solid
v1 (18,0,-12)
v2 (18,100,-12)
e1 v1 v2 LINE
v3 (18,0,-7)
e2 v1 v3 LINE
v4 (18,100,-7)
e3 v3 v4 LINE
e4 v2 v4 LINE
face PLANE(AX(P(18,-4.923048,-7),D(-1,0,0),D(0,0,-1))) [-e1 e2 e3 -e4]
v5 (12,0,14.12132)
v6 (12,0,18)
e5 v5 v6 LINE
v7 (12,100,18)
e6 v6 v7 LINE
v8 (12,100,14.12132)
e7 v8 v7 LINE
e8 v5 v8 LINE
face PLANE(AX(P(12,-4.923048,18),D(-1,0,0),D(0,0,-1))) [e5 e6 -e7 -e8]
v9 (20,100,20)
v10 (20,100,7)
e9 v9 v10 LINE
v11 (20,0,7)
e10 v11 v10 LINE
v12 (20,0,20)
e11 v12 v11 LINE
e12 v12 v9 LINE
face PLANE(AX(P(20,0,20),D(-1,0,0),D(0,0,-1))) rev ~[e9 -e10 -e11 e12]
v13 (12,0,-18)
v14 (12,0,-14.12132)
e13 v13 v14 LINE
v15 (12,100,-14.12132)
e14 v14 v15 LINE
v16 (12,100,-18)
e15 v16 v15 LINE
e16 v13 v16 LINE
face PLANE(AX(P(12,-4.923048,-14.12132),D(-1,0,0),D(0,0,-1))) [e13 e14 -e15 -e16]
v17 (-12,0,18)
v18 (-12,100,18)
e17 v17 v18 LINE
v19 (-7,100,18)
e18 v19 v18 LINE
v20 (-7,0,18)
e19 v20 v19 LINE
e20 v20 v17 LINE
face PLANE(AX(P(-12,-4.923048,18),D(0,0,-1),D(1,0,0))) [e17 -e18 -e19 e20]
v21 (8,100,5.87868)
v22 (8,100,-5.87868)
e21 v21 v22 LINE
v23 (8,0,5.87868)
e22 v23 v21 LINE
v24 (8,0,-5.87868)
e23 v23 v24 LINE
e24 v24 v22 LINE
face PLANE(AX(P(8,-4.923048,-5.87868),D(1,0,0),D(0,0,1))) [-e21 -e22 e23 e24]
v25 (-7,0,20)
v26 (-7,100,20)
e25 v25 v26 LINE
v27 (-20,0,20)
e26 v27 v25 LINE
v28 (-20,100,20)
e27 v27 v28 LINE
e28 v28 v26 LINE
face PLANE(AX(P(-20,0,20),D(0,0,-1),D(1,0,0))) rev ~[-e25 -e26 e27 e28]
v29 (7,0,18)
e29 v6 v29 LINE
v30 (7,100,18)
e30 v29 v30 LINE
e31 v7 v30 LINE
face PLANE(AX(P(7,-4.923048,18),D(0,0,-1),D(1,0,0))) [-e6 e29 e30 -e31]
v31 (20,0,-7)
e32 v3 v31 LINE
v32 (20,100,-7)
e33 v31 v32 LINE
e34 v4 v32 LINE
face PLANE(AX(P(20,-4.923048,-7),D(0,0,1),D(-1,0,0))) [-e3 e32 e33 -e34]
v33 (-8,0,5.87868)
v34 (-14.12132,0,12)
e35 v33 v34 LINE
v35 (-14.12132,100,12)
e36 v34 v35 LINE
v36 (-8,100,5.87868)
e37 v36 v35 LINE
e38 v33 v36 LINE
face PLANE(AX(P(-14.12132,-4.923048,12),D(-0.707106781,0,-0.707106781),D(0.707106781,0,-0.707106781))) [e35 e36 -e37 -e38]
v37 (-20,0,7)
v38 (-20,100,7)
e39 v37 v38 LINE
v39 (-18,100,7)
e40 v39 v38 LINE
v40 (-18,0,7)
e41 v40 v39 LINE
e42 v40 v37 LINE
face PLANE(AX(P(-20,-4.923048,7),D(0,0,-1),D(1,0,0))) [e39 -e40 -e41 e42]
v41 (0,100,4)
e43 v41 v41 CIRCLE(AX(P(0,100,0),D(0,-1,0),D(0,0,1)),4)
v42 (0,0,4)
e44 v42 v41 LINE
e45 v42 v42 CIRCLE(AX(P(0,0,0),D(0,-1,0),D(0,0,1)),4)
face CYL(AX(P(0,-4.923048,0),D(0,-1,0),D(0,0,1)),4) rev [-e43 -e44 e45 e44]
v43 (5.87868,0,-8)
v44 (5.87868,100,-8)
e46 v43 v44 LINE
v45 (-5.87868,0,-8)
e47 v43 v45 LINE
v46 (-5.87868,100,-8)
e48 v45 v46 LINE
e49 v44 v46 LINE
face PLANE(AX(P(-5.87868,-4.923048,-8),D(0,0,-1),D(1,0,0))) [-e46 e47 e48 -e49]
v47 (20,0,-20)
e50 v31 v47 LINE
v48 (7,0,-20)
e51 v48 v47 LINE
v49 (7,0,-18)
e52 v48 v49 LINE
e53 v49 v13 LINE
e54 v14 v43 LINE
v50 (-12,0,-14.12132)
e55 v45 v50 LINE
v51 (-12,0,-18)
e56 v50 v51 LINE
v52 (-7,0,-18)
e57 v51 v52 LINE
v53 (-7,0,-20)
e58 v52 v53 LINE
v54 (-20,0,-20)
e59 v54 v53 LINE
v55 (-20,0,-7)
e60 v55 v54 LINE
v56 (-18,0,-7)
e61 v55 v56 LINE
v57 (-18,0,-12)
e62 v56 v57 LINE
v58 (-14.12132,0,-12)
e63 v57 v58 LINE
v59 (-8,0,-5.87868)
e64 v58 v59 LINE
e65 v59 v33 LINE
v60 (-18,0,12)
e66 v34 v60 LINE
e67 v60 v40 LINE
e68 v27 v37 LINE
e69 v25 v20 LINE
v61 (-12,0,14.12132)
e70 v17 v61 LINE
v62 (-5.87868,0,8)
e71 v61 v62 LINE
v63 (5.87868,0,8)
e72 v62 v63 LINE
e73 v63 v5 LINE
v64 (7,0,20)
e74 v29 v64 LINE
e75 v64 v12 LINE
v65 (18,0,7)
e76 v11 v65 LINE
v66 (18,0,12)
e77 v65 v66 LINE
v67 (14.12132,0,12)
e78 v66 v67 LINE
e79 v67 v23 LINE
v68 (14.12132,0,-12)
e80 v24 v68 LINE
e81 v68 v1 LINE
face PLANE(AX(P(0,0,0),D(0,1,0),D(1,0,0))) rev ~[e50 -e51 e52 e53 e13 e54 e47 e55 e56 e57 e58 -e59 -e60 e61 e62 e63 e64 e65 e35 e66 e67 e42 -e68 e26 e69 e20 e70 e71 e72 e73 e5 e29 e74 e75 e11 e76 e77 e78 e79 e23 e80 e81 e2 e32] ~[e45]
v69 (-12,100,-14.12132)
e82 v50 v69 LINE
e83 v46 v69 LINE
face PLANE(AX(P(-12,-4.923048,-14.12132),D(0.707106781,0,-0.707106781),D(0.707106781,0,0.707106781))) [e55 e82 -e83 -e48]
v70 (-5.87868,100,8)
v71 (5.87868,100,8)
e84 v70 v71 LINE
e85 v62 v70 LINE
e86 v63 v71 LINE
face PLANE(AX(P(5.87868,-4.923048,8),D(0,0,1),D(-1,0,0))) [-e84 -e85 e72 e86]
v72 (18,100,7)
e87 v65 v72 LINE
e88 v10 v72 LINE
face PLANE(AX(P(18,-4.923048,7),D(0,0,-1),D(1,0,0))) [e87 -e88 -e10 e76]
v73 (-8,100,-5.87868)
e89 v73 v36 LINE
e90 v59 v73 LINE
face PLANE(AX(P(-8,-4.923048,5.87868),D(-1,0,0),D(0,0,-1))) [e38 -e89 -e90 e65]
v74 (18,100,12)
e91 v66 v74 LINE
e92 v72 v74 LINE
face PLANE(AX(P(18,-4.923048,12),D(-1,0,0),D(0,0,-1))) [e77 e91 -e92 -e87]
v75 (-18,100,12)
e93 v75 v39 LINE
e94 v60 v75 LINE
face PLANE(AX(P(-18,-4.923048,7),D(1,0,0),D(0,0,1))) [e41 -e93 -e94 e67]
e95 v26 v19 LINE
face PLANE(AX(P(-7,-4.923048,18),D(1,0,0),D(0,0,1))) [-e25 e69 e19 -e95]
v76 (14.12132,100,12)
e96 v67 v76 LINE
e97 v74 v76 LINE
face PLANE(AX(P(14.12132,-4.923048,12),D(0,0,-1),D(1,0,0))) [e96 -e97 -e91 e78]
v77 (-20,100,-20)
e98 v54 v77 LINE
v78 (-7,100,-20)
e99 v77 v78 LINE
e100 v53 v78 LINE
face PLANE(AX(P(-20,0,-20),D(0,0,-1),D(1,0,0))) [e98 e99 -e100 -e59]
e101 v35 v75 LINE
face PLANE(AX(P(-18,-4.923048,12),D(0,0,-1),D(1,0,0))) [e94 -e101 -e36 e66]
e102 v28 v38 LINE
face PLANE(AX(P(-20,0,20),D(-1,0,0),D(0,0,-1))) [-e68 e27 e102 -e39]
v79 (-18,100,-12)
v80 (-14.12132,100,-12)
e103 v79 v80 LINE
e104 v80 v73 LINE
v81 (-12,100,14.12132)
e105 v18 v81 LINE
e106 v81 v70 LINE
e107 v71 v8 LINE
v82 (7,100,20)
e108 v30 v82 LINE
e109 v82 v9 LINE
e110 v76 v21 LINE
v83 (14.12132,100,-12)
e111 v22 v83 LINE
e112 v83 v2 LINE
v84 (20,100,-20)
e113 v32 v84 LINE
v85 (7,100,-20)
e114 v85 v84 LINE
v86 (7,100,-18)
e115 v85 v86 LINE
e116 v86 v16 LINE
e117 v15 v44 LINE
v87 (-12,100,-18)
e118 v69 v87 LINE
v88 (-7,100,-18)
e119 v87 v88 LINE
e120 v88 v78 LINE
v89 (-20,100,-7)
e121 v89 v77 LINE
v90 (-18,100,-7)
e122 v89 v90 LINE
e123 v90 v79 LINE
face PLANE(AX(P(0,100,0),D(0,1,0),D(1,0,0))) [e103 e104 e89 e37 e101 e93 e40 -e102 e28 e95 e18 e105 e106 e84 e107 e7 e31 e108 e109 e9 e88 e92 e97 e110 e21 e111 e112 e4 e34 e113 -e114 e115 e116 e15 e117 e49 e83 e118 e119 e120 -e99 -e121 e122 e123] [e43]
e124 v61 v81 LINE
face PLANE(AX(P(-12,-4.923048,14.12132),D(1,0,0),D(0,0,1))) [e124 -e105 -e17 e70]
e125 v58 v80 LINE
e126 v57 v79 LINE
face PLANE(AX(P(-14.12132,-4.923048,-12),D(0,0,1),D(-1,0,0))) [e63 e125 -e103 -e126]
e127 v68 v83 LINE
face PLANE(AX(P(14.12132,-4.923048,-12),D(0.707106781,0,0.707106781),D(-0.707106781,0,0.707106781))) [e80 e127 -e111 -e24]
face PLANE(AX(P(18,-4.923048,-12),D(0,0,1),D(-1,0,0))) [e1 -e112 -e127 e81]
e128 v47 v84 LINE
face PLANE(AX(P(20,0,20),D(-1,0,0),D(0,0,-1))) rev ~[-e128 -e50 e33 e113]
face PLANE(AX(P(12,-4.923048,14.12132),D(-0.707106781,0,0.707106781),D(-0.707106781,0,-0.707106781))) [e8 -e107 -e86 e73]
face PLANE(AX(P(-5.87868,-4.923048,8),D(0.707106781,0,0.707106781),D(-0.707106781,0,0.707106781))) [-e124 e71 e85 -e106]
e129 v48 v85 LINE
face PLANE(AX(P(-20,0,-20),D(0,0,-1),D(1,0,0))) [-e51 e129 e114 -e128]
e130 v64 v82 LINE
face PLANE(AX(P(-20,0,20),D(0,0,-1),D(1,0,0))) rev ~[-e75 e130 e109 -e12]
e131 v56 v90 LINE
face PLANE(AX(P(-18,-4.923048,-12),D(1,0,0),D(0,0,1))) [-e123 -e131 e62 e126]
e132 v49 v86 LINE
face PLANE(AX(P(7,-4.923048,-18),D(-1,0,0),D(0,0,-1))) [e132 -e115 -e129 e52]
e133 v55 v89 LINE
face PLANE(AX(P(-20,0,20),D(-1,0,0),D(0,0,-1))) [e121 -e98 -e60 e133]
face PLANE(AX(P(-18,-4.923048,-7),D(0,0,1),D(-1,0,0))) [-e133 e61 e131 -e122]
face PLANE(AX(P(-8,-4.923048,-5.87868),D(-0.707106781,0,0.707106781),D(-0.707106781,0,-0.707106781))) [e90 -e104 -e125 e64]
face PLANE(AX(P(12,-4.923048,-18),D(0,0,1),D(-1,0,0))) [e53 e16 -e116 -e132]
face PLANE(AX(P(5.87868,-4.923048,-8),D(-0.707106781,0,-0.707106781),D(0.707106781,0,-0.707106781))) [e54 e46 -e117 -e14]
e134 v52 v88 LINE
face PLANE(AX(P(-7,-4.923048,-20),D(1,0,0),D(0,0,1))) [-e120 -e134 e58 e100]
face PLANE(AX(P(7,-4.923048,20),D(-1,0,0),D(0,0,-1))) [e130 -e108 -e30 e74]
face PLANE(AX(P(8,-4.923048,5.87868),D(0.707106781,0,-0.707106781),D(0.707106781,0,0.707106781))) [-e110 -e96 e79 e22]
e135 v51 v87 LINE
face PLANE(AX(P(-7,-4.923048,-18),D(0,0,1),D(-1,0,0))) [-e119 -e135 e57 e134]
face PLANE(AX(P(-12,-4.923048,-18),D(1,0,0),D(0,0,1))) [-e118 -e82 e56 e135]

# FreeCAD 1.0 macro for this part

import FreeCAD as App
import Part
import Sketcher

V = App.Vector
Q = App.Units.Quantity

doc = App.newDocument("Part")
body = doc.addObject("PartDesign::Body", "Body")

# Sketch on XZ plane
sketch1 = doc.addObject("Sketcher::SketchObject", "Sketch")
body.addObject(sketch1)
sketch1.AttachmentSupport = (doc.XZ_Plane, [""])
sketch1.MapMode = "FlatFace"
sketch1.addGeometry([
    Part.LineSegment(V(-20, -20, 0), V(-20, 20, 0)),
    Part.LineSegment(V(-20, 20, 0), V(20, 20, 0)),
    Part.LineSegment(V(20, 20, 0), V(20, -20, 0)),
    Part.LineSegment(V(20, -20, 0), V(-20, -20, 0)),
], False)
sketch1.addConstraint([
    Sketcher.Constraint("Coincident", 0, 2, 1, 1),
    Sketcher.Constraint("Coincident", 1, 2, 2, 1),
    Sketcher.Constraint("Coincident", 2, 2, 3, 1),
    Sketcher.Constraint("Coincident", 3, 2, 0, 1),
    Sketcher.Constraint("Vertical", 0),
    Sketcher.Constraint("Horizontal", 1),
    Sketcher.Constraint("Vertical", 2),
    Sketcher.Constraint("Horizontal", 3),
    Sketcher.Constraint("Symmetric", 0, 2, 2, 2, -1, 1),
    Sketcher.Constraint("Equal", 3, 0),
    Sketcher.Constraint("DistanceX", 1, 1, 1, 2, Q("40 mm")),
])
pad1 = doc.addObject("PartDesign::Pad", "Pad")
body.addObject(pad1)
pad1.Profile = sketch1
pad1.Length = 100
pad1.Reversed = True

# Sketch on XZ plane
sketch2 = doc.addObject("Sketcher::SketchObject", "Sketch001")
body.addObject(sketch2)
sketch2.AttachmentSupport = (doc.XZ_Plane, [""])
sketch2.MapMode = "FlatFace"
sketch2.AttachmentOffset = App.Placement(V(0, 0, -100), App.Rotation())
sketch2.addGeometry([
    Part.Circle(V(0, 0, 0), V(0, 0, 1), 4),  # 0
    Part.LineSegment(V(-7, -20, 0), V(-7, -18, 0)),  # 1
    Part.LineSegment(V(-7, -18, 0), V(-12, -18, 0)),  # 2
    Part.LineSegment(V(-12, -18, 0), V(-12, -14.1, 0)),  # 3
    Part.LineSegment(V(-12, -14.1, 0), V(-5.9, -8, 0)),  # 4
    Part.LineSegment(V(-5.9, -8, 0), V(5.9, -8, 0)),  # 5
    Part.LineSegment(V(5.9, -8, 0), V(12, -14.1, 0)),  # 6
    Part.LineSegment(V(12, -14.1, 0), V(12, -18, 0)),  # 7
    Part.LineSegment(V(12, -18, 0), V(7, -18, 0)),  # 8
    Part.LineSegment(V(7, -18, 0), V(7, -20, 0)),  # 9
    Part.LineSegment(V(7, -20, 0), V(-7, -20, 0)),  # 10
    Part.LineSegment(V(20, -7, 0), V(18, -7, 0)),  # 11
    Part.LineSegment(V(18, -7, 0), V(18, -12, 0)),  # 12
    Part.LineSegment(V(18, -12, 0), V(14.1, -12, 0)),  # 13
    Part.LineSegment(V(14.1, -12, 0), V(8, -5.9, 0)),  # 14
    Part.LineSegment(V(8, -5.9, 0), V(8, 5.9, 0)),  # 15
    Part.LineSegment(V(8, 5.9, 0), V(14.1, 12, 0)),  # 16
    Part.LineSegment(V(14.1, 12, 0), V(18, 12, 0)),  # 17
    Part.LineSegment(V(18, 12, 0), V(18, 7, 0)),  # 18
    Part.LineSegment(V(18, 7, 0), V(20, 7, 0)),  # 19
    Part.LineSegment(V(20, 7, 0), V(20, -7, 0)),  # 20
    Part.LineSegment(V(7, 20, 0), V(7, 18, 0)),  # 21
    Part.LineSegment(V(7, 18, 0), V(12, 18, 0)),  # 22
    Part.LineSegment(V(12, 18, 0), V(12, 14.1, 0)),  # 23
    Part.LineSegment(V(12, 14.1, 0), V(5.9, 8, 0)),  # 24
    Part.LineSegment(V(5.9, 8, 0), V(-5.9, 8, 0)),  # 25
    Part.LineSegment(V(-5.9, 8, 0), V(-12, 14.1, 0)),  # 26
    Part.LineSegment(V(-12, 14.1, 0), V(-12, 18, 0)),  # 27
    Part.LineSegment(V(-12, 18, 0), V(-7, 18, 0)),  # 28
    Part.LineSegment(V(-7, 18, 0), V(-7, 20, 0)),  # 29
    Part.LineSegment(V(-7, 20, 0), V(7, 20, 0)),  # 30
    Part.LineSegment(V(-20, 7, 0), V(-18, 7, 0)),  # 31
    Part.LineSegment(V(-18, 7, 0), V(-18, 12, 0)),  # 32
    Part.LineSegment(V(-18, 12, 0), V(-14.1, 12, 0)),  # 33
    Part.LineSegment(V(-14.1, 12, 0), V(-8, 5.9, 0)),  # 34
    Part.LineSegment(V(-8, 5.9, 0), V(-8, -5.9, 0)),  # 35
    Part.LineSegment(V(-8, -5.9, 0), V(-14.1, -12, 0)),  # 36
    Part.LineSegment(V(-14.1, -12, 0), V(-18, -12, 0)),  # 37
    Part.LineSegment(V(-18, -12, 0), V(-18, -7, 0)),  # 38
    Part.LineSegment(V(-18, -7, 0), V(-20, -7, 0)),  # 39
    Part.LineSegment(V(-20, -7, 0), V(-20, 7, 0)),  # 40
], False)
sketch2.addConstraint([
    Sketcher.Constraint("Coincident", 1, 2, 2, 1),
    Sketcher.Constraint("Coincident", 2, 2, 3, 1),
    Sketcher.Constraint("Coincident", 3, 2, 4, 1),
    Sketcher.Constraint("Coincident", 4, 2, 5, 1),
    Sketcher.Constraint("Coincident", 5, 2, 6, 1),
    Sketcher.Constraint("Coincident", 6, 2, 7, 1),
    Sketcher.Constraint("Coincident", 7, 2, 8, 1),
    Sketcher.Constraint("Coincident", 8, 2, 9, 1),
    Sketcher.Constraint("Coincident", 9, 2, 10, 1),
    Sketcher.Constraint("Coincident", 10, 2, 1, 1),
    Sketcher.Constraint("Coincident", 11, 2, 12, 1),
    Sketcher.Constraint("Coincident", 12, 2, 13, 1),
    Sketcher.Constraint("Coincident", 13, 2, 14, 1),
    Sketcher.Constraint("Coincident", 14, 2, 15, 1),
    Sketcher.Constraint("Coincident", 15, 2, 16, 1),
    Sketcher.Constraint("Coincident", 16, 2, 17, 1),
    Sketcher.Constraint("Coincident", 17, 2, 18, 1),
    Sketcher.Constraint("Coincident", 18, 2, 19, 1),
    Sketcher.Constraint("Coincident", 19, 2, 20, 1),
    Sketcher.Constraint("Coincident", 20, 2, 11, 1),
    Sketcher.Constraint("Coincident", 21, 2, 22, 1),
    Sketcher.Constraint("Coincident", 22, 2, 23, 1),
    Sketcher.Constraint("Coincident", 23, 2, 24, 1),
    Sketcher.Constraint("Coincident", 24, 2, 25, 1),
    Sketcher.Constraint("Coincident", 25, 2, 26, 1),
    Sketcher.Constraint("Coincident", 26, 2, 27, 1),
    Sketcher.Constraint("Coincident", 27, 2, 28, 1),
    Sketcher.Constraint("Coincident", 28, 2, 29, 1),
    Sketcher.Constraint("Coincident", 29, 2, 30, 1),
    Sketcher.Constraint("Coincident", 30, 2, 21, 1),
    Sketcher.Constraint("Coincident", 31, 2, 32, 1),
    Sketcher.Constraint("Coincident", 32, 2, 33, 1),
    Sketcher.Constraint("Coincident", 33, 2, 34, 1),
    Sketcher.Constraint("Coincident", 34, 2, 35, 1),
    Sketcher.Constraint("Coincident", 35, 2, 36, 1),
    Sketcher.Constraint("Coincident", 36, 2, 37, 1),
    Sketcher.Constraint("Coincident", 37, 2, 38, 1),
    Sketcher.Constraint("Coincident", 38, 2, 39, 1),
    Sketcher.Constraint("Coincident", 39, 2, 40, 1),
    Sketcher.Constraint("Coincident", 40, 2, 31, 1),
    Sketcher.Constraint("Vertical", 1),
    Sketcher.Constraint("Horizontal", 2),
    Sketcher.Constraint("Vertical", 3),
    Sketcher.Constraint("Horizontal", 5),
    Sketcher.Constraint("Vertical", 7),
    Sketcher.Constraint("Horizontal", 8),
    Sketcher.Constraint("Vertical", 9),
    Sketcher.Constraint("Horizontal", 10),
    Sketcher.Constraint("Horizontal", 11),
    Sketcher.Constraint("Vertical", 12),
    Sketcher.Constraint("Horizontal", 13),
    Sketcher.Constraint("Vertical", 15),
    Sketcher.Constraint("Horizontal", 17),
    Sketcher.Constraint("Vertical", 18),
    Sketcher.Constraint("Horizontal", 19),
    Sketcher.Constraint("Vertical", 20),
    Sketcher.Constraint("Vertical", 21),
    Sketcher.Constraint("Horizontal", 22),
    Sketcher.Constraint("Vertical", 23),
    Sketcher.Constraint("Horizontal", 25),
    Sketcher.Constraint("Vertical", 27),
    Sketcher.Constraint("Horizontal", 28),
    Sketcher.Constraint("Vertical", 29),
    Sketcher.Constraint("Horizontal", 30),
    Sketcher.Constraint("Horizontal", 31),
    Sketcher.Constraint("Vertical", 32),
    Sketcher.Constraint("Horizontal", 33),
    Sketcher.Constraint("Vertical", 35),
    Sketcher.Constraint("Horizontal", 37),
    Sketcher.Constraint("Vertical", 38),
    Sketcher.Constraint("Horizontal", 39),
    Sketcher.Constraint("Vertical", 40),
    Sketcher.Constraint("Coincident", 0, 3, -1, 1),
    Sketcher.Constraint("Symmetric", 1, 2, 21, 2, -1, 1),
    Sketcher.Constraint("Symmetric", 3, 2, 23, 2, -1, 1),
    Sketcher.Constraint("Symmetric", 4, 2, 24, 2, -1, 1),
    Sketcher.Constraint("Symmetric", 6, 2, 26, 2, -1, 1),
    Sketcher.Constraint("Symmetric", 8, 2, 28, 2, -1, 1),
    Sketcher.Constraint("Symmetric", 11, 2, 31, 2, -1, 1),
    Sketcher.Constraint("Symmetric", 13, 2, 33, 2, -1, 1),
    Sketcher.Constraint("Symmetric", 14, 2, 34, 2, -1, 1),
    Sketcher.Constraint("Symmetric", 16, 2, 36, 2, -1, 1),
    Sketcher.Constraint("Symmetric", 18, 2, 38, 2, -1, 1),
    Sketcher.Constraint("Symmetric", 3, 2, 6, 2, -2),
    Sketcher.Constraint("Symmetric", 1, 2, 8, 2, -2),
    Sketcher.Constraint("Symmetric", 18, 2, 31, 2, -2),
    Sketcher.Constraint("Symmetric", 16, 2, 33, 2, -2),
    Sketcher.Constraint("Perpendicular", 4, 6),
    Sketcher.Constraint("Parallel", 6, 14),
    Sketcher.Constraint("Perpendicular", 14, 16),
    Sketcher.Constraint("Perpendicular", 24, 26),
    Sketcher.Constraint("Perpendicular", 34, 36),
    Sketcher.Constraint("Horizontal", 15, 2, 34, 2),
    Sketcher.Constraint("Equal", 19, 31),
    Sketcher.Constraint("Equal", 39, 1),
    Sketcher.Constraint("Equal", 37, 3),
    Sketcher.Constraint("Equal", 28, 12),
    Sketcher.Constraint("Equal", 25, 15),
    Sketcher.Constraint("Equal", 30, 20),
    Sketcher.Constraint("Equal", 9, 21),
    Sketcher.Constraint("Diameter", 0, Q("8 mm")),
    Sketcher.Constraint("DistanceX", 2, 2, 2, 1, Q("5 mm")),
    Sketcher.Constraint("DistanceX", 10, 2, 10, 1, Q("14 mm")),
    Sketcher.Constraint("DistanceX", 11, 2, 11, 1, Q("2 mm")),
    Sketcher.Constraint("DistanceY", 1, 2, -1, 1, Q("18 mm")),
    Sketcher.Constraint("DistanceY", 4, 2, -1, 1, Q("8 mm")),
    Sketcher.Constraint("DistanceX", -1, 1, 11, 2, Q("18 mm")),
    Sketcher.Constraint("DistanceX", 5, 1, 5, 2, Q("11.757359 mm")),
])
pocket1 = doc.addObject("PartDesign::Pocket", "Pocket")
body.addObject(pocket1)
pocket1.Profile = sketch2
pocket1.Type = "ThroughAll"
pocket1.Midplane = True

doc.recompute()
